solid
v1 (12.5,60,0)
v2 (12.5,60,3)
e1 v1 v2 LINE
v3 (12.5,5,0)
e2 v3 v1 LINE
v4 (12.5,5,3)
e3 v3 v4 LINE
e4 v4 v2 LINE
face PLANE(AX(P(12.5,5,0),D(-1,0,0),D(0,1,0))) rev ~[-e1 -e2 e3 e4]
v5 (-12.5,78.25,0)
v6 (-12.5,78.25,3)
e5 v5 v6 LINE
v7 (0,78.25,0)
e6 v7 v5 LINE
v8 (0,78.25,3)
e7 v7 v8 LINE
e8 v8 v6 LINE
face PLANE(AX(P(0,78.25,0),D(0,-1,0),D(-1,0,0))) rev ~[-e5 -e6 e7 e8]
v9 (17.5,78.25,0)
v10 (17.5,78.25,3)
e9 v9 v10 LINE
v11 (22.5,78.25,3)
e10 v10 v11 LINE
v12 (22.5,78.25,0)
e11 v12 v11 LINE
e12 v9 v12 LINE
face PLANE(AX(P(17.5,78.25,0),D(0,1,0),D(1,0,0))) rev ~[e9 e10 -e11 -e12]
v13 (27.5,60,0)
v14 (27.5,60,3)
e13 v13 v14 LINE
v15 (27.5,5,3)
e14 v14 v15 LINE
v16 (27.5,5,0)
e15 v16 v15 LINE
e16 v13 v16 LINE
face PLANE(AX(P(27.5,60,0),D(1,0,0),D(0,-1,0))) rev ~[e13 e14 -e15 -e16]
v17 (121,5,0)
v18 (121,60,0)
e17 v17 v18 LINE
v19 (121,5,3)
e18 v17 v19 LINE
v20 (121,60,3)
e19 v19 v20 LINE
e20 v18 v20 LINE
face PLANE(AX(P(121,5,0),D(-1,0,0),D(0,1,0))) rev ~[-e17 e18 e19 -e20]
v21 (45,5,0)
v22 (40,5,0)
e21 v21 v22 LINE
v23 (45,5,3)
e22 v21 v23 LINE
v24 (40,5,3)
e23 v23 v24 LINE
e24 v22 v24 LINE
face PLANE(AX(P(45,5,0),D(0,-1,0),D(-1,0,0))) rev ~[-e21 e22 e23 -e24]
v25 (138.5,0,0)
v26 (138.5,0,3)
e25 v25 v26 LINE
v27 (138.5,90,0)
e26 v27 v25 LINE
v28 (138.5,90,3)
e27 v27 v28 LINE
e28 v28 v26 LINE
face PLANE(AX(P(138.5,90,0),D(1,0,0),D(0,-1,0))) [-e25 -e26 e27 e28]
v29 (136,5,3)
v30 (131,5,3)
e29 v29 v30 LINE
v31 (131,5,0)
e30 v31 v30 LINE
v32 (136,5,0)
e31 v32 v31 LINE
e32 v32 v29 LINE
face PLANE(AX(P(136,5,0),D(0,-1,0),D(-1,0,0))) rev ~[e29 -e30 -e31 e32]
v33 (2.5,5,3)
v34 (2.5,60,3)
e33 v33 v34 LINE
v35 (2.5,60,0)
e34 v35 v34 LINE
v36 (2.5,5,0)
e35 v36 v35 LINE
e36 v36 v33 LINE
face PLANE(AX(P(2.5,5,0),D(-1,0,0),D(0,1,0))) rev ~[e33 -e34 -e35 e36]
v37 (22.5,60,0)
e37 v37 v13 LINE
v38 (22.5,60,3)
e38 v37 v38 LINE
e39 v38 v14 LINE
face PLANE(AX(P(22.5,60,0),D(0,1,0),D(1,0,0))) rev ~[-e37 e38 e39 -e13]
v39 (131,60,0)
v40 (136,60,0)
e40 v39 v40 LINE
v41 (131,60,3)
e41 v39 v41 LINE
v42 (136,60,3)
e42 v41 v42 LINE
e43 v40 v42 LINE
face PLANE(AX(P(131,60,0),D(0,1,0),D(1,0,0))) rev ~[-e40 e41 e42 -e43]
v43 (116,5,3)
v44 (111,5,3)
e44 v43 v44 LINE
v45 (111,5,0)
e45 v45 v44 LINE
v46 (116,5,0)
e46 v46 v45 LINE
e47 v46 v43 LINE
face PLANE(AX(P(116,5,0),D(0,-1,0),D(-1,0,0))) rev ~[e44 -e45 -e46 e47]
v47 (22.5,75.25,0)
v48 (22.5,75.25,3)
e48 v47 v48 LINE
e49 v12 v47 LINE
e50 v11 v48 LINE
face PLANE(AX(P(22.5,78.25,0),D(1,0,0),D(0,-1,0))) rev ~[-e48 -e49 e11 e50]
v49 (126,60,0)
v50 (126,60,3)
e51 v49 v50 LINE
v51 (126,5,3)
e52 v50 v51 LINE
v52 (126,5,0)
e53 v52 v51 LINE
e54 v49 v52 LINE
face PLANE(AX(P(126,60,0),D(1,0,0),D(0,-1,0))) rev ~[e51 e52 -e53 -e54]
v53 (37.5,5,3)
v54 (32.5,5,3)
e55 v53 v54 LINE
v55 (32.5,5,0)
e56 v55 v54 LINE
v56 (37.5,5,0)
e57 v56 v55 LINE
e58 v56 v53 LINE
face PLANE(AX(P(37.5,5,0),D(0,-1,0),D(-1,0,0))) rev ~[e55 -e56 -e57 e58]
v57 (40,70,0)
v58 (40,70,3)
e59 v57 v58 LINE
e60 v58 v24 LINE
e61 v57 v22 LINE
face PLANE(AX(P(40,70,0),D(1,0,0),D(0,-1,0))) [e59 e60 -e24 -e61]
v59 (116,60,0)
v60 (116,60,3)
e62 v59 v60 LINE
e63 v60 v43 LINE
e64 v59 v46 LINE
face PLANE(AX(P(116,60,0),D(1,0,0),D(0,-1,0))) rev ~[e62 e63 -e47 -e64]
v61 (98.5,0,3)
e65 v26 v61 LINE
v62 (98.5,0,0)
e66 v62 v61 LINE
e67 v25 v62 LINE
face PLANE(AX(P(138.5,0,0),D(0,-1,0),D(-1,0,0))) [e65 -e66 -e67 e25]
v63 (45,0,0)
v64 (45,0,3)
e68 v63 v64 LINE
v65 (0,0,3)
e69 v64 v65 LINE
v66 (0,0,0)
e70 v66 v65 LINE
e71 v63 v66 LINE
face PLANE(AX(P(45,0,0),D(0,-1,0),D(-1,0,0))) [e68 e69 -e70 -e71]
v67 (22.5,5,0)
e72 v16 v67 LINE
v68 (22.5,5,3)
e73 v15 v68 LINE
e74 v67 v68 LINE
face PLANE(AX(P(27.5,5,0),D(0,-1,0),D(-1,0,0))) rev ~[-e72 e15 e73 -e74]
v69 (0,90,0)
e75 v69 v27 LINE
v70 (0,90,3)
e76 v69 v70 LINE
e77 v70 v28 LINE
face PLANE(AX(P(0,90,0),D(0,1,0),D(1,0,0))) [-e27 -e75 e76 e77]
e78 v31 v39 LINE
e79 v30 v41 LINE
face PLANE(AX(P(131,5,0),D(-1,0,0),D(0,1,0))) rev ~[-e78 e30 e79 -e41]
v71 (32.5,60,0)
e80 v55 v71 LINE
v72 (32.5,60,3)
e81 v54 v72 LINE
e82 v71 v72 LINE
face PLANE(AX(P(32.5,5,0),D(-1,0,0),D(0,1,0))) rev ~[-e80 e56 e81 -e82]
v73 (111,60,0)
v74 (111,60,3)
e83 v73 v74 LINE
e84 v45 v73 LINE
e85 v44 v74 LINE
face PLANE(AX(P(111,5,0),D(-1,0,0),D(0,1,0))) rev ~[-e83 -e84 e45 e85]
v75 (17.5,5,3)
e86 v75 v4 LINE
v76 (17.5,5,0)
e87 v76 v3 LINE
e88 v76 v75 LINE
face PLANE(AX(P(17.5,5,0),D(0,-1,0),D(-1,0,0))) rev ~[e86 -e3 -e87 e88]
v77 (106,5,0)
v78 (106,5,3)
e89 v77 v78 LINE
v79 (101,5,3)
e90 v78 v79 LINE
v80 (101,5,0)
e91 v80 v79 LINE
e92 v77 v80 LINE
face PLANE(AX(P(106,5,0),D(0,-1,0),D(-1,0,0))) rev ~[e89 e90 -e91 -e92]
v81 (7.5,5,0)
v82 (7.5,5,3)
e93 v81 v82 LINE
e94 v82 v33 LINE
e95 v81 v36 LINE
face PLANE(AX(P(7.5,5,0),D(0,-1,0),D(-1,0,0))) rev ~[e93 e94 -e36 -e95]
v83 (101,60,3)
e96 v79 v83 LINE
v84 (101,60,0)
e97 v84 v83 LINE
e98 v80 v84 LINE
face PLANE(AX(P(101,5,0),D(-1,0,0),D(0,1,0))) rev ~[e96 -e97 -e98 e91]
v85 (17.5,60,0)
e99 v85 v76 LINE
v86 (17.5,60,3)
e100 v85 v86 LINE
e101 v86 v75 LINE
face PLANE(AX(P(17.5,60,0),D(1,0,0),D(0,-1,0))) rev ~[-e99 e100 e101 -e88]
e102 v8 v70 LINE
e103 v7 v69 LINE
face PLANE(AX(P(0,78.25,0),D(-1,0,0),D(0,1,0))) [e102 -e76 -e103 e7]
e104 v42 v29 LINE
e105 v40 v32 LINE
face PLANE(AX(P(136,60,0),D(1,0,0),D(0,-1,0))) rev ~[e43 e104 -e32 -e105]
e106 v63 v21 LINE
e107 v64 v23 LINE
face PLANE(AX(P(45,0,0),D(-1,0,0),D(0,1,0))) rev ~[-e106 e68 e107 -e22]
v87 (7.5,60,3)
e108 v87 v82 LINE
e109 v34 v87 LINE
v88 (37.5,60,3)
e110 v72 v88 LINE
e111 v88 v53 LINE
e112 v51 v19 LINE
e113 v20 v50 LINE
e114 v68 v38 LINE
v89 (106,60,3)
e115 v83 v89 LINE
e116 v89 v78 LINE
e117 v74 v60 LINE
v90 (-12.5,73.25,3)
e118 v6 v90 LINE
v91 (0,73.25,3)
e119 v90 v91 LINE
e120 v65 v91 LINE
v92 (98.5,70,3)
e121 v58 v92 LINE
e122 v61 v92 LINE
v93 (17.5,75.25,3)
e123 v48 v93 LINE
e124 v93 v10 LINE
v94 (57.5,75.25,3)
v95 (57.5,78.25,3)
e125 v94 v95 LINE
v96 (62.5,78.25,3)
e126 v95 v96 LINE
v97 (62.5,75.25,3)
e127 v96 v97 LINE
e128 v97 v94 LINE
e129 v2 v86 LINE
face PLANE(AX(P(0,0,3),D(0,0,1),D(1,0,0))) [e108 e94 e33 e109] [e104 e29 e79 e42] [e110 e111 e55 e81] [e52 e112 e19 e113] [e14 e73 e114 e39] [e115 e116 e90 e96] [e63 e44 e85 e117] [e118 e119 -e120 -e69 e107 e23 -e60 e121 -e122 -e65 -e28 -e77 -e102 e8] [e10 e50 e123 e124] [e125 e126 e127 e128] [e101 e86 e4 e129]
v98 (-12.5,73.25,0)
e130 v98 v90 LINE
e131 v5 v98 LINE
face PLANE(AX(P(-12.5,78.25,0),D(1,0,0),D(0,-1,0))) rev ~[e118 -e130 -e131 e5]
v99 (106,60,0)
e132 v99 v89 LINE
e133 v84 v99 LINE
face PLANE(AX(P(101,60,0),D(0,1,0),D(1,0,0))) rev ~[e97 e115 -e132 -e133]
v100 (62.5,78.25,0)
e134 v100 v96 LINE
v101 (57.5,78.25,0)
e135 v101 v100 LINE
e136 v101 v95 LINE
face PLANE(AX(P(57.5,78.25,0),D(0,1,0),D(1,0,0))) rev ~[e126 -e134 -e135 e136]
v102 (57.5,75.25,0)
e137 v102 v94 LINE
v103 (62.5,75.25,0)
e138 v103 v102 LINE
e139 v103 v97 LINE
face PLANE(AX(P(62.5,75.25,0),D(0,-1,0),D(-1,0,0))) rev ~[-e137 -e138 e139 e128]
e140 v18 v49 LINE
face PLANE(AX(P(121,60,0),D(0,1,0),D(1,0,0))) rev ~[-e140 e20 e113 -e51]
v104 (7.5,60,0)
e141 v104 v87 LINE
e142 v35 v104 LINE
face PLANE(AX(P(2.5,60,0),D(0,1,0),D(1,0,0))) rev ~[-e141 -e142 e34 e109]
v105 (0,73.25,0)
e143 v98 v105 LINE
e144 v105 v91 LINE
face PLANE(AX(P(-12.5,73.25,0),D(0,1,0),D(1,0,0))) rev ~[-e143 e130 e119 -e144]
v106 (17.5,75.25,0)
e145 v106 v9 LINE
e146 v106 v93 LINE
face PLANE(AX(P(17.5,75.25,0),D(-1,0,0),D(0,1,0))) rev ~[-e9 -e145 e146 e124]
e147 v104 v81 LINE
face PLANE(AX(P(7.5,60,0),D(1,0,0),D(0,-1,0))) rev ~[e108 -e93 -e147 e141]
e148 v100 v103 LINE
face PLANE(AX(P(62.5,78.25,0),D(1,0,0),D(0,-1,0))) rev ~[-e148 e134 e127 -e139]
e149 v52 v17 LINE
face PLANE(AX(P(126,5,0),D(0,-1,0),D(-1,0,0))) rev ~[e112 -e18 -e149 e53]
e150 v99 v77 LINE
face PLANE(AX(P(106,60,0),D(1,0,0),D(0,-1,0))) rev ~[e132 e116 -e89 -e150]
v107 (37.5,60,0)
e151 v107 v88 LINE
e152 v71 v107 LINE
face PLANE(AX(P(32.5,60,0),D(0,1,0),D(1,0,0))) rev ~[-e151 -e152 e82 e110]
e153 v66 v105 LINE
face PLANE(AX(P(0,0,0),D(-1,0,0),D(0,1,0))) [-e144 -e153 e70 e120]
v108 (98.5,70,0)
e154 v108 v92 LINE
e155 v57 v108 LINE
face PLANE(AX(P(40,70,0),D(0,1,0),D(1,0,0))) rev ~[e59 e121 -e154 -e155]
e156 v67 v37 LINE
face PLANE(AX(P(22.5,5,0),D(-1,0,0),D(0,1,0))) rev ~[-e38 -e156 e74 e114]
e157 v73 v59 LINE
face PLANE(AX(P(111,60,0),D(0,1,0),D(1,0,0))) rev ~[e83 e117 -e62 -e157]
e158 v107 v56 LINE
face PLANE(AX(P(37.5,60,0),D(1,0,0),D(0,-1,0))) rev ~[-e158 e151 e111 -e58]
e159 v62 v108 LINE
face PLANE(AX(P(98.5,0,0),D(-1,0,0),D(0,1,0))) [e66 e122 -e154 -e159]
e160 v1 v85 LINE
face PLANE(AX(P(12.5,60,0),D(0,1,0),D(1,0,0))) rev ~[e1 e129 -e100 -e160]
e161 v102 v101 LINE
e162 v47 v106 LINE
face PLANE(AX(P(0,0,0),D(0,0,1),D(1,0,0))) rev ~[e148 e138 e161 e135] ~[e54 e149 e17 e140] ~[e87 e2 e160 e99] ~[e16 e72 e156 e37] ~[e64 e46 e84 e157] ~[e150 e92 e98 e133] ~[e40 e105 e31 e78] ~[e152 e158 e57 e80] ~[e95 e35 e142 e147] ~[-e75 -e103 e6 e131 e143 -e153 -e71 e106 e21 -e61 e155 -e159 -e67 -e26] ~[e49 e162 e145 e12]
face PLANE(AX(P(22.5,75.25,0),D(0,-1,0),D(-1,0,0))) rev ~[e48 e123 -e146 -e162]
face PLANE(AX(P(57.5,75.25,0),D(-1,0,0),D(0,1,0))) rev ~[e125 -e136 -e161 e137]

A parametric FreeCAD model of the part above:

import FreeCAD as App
import Part
import Sketcher

V = App.Vector

doc = App.newDocument("Part")
body = doc.addObject("PartDesign::Body", "Body")

# Sketch on XY plane
sketch1 = doc.addObject("Sketcher::SketchObject", "Sketch")
body.addObject(sketch1)
sketch1.AttachmentSupport = (doc.XY_Plane, [""])
sketch1.MapMode = "FlatFace"
sketch1.addGeometry([
    Part.LineSegment(V(40, 5, 0), V(40, 70, 0)),  # 0
    Part.LineSegment(V(40, 70, 0), V(98.5, 70, 0)),  # 1
    Part.LineSegment(V(98.5, 70, 0), V(98.5, 0, 0)),  # 2
    Part.LineSegment(V(98.5, 0, 0), V(138.5, 0, 0)),  # 3
    Part.LineSegment(V(138.5, 0, 0), V(138.5, 90, 0)),  # 4
    Part.LineSegment(V(138.5, 90, 0), V(0, 90, 0)),  # 5
    Part.LineSegment(V(0, 90, 0), V(0, 78.2, 0)),  # 6
    Part.LineSegment(V(0, 78.2, 0), V(-12.5, 78.2, 0)),  # 7
    Part.LineSegment(V(-12.5, 78.2, 0), V(-12.5, 73.2, 0)),  # 8
    Part.LineSegment(V(-12.5, 73.2, 0), V(0, 73.2, 0)),  # 9
    Part.LineSegment(V(0, 73.2, 0), V(0, 0, 0)),  # 10
    Part.LineSegment(V(0, 0, 0), V(45, 0, 0)),  # 11
    Part.LineSegment(V(45, 0, 0), V(45, 5, 0)),  # 12
    Part.LineSegment(V(45, 5, 0), V(40, 5, 0)),  # 13
    Part.LineSegment(V(2.5, 5, 0), V(2.5, 60, 0)),  # 14
    Part.LineSegment(V(2.5, 60, 0), V(7.5, 60, 0)),  # 15
    Part.LineSegment(V(7.5, 60, 0), V(7.5, 5, 0)),  # 16
    Part.LineSegment(V(7.5, 5, 0), V(2.5, 5, 0)),  # 17
    Part.LineSegment(V(12.5, 5, 0), V(12.5, 60, 0)),  # 18
    Part.LineSegment(V(12.5, 60, 0), V(17.5, 60, 0)),  # 19
    Part.LineSegment(V(17.5, 60, 0), V(17.5, 5, 0)),  # 20
    Part.LineSegment(V(17.5, 5, 0), V(12.5, 5, 0)),  # 21
    Part.LineSegment(V(22.5, 5, 0), V(22.5, 60, 0)),  # 22
    Part.LineSegment(V(22.5, 60, 0), V(27.5, 60, 0)),  # 23
    Part.LineSegment(V(27.5, 60, 0), V(27.5, 5, 0)),  # 24
    Part.LineSegment(V(27.5, 5, 0), V(22.5, 5, 0)),  # 25
    Part.LineSegment(V(32.5, 5, 0), V(32.5, 60, 0)),  # 26
    Part.LineSegment(V(32.5, 60, 0), V(37.5, 60, 0)),  # 27
    Part.LineSegment(V(37.5, 60, 0), V(37.5, 5, 0)),  # 28
    Part.LineSegment(V(37.5, 5, 0), V(32.5, 5, 0)),  # 29
    Part.LineSegment(V(101, 5, 0), V(101, 60, 0)),  # 30
    Part.LineSegment(V(101, 60, 0), V(106, 60, 0)),  # 31
    Part.LineSegment(V(106, 60, 0), V(106, 5, 0)),  # 32
    Part.LineSegment(V(106, 5, 0), V(101, 5, 0)),  # 33
    Part.LineSegment(V(111, 5, 0), V(111, 60, 0)),  # 34
    Part.LineSegment(V(111, 60, 0), V(116, 60, 0)),  # 35
    Part.LineSegment(V(116, 60, 0), V(116, 5, 0)),  # 36
    Part.LineSegment(V(116, 5, 0), V(111, 5, 0)),  # 37
    Part.LineSegment(V(121, 5, 0), V(121, 60, 0)),  # 38
    Part.LineSegment(V(121, 60, 0), V(126, 60, 0)),  # 39
    Part.LineSegment(V(126, 60, 0), V(126, 5, 0)),  # 40
    Part.LineSegment(V(126, 5, 0), V(121, 5, 0)),  # 41
    Part.LineSegment(V(131, 60, 0), V(136, 60, 0)),  # 42
    Part.LineSegment(V(136, 60, 0), V(136, 5, 0)),  # 43
    Part.LineSegment(V(136, 5, 0), V(131, 5, 0)),  # 44
    Part.LineSegment(V(131, 5, 0), V(131, 60, 0)),  # 45
    Part.LineSegment(V(17.5, 75.2, 0), V(17.5, 78.2, 0)),  # 46
    Part.LineSegment(V(17.5, 78.2, 0), V(22.5, 78.2, 0)),  # 47
    Part.LineSegment(V(22.5, 78.2, 0), V(22.5, 75.2, 0)),  # 48
    Part.LineSegment(V(22.5, 75.2, 0), V(17.5, 75.2, 0)),  # 49
    Part.LineSegment(V(57.5, 75.2, 0), V(57.5, 78.2, 0)),  # 50
    Part.LineSegment(V(57.5, 78.2, 0), V(62.5, 78.2, 0)),  # 51
    Part.LineSegment(V(62.5, 78.2, 0), V(62.5, 75.2, 0)),  # 52
    Part.LineSegment(V(62.5, 75.2, 0), V(57.5, 75.2, 0)),  # 53
], False)
sketch1.addConstraint([
    Sketcher.Constraint("Coincident", 0, 2, 1, 1),
    Sketcher.Constraint("Coincident", 1, 2, 2, 1),
    Sketcher.Constraint("Coincident", 2, 2, 3, 1),
    Sketcher.Constraint("Coincident", 3, 2, 4, 1),
    Sketcher.Constraint("Coincident", 4, 2, 5, 1),
    Sketcher.Constraint("Coincident", 5, 2, 6, 1),
    Sketcher.Constraint("Coincident", 6, 2, 7, 1),
    Sketcher.Constraint("Coincident", 7, 2, 8, 1),
    Sketcher.Constraint("Coincident", 8, 2, 9, 1),
    Sketcher.Constraint("Coincident", 9, 2, 10, 1),
    Sketcher.Constraint("Coincident", 10, 2, 11, 1),
    Sketcher.Constraint("Coincident", 11, 2, 12, 1),
    Sketcher.Constraint("Coincident", 12, 2, 13, 1),
    Sketcher.Constraint("Coincident", 13, 2, 0, 1),
    Sketcher.Constraint("Coincident", 14, 2, 15, 1),
    Sketcher.Constraint("Coincident", 15, 2, 16, 1),
    Sketcher.Constraint("Coincident", 16, 2, 17, 1),
    Sketcher.Constraint("Coincident", 17, 2, 14, 1),
    Sketcher.Constraint("Coincident", 18, 2, 19, 1),
    Sketcher.Constraint("Coincident", 19, 2, 20, 1),
    Sketcher.Constraint("Coincident", 20, 2, 21, 1),
    Sketcher.Constraint("Coincident", 21, 2, 18, 1),
    Sketcher.Constraint("Coincident", 22, 2, 23, 1),
    Sketcher.Constraint("Coincident", 23, 2, 24, 1),
    Sketcher.Constraint("Coincident", 24, 2, 25, 1),
    Sketcher.Constraint("Coincident", 25, 2, 22, 1),
    Sketcher.Constraint("Coincident", 26, 2, 27, 1),
    Sketcher.Constraint("Coincident", 27, 2, 28, 1),
    Sketcher.Constraint("Coincident", 28, 2, 29, 1),
    Sketcher.Constraint("Coincident", 29, 2, 26, 1),
    Sketcher.Constraint("Coincident", 30, 2, 31, 1),
    Sketcher.Constraint("Coincident", 31, 2, 32, 1),
    Sketcher.Constraint("Coincident", 32, 2, 33, 1),
    Sketcher.Constraint("Coincident", 33, 2, 30, 1),
    Sketcher.Constraint("Coincident", 34, 2, 35, 1),
    Sketcher.Constraint("Coincident", 35, 2, 36, 1),
    Sketcher.Constraint("Coincident", 36, 2, 37, 1),
    Sketcher.Constraint("Coincident", 37, 2, 34, 1),
    Sketcher.Constraint("Coincident", 38, 2, 39, 1),
    Sketcher.Constraint("Coincident", 39, 2, 40, 1),
    Sketcher.Constraint("Coincident", 40, 2, 41, 1),
    Sketcher.Constraint("Coincident", 41, 2, 38, 1),
    Sketcher.Constraint("Coincident", 42, 2, 43, 1),
    Sketcher.Constraint("Coincident", 43, 2, 44, 1),
    Sketcher.Constraint("Coincident", 44, 2, 45, 1),
    Sketcher.Constraint("Coincident", 45, 2, 42, 1),
    Sketcher.Constraint("Coincident", 46, 2, 47, 1),
    Sketcher.Constraint("Coincident", 47, 2, 48, 1),
    Sketcher.Constraint("Coincident", 48, 2, 49, 1),
    Sketcher.Constraint("Coincident", 49, 2, 46, 1),
    Sketcher.Constraint("Coincident", 50, 2, 51, 1),
    Sketcher.Constraint("Coincident", 51, 2, 52, 1),
    Sketcher.Constraint("Coincident", 52, 2, 53, 1),
    Sketcher.Constraint("Coincident", 53, 2, 50, 1),
    Sketcher.Constraint("Vertical", 0),
    Sketcher.Constraint("Horizontal", 1),
    Sketcher.Constraint("Vertical", 2),
    Sketcher.Constraint("Horizontal", 3),
    Sketcher.Constraint("Vertical", 4),
    Sketcher.Constraint("Horizontal", 5),
    Sketcher.Constraint("Vertical", 6),
    Sketcher.Constraint("Horizontal", 7),
    Sketcher.Constraint("Vertical", 8),
    Sketcher.Constraint("Horizontal", 9),
    Sketcher.Constraint("Vertical", 10),
    Sketcher.Constraint("Horizontal", 11),
    Sketcher.Constraint("Vertical", 12),
    Sketcher.Constraint("Horizontal", 13),
    Sketcher.Constraint("Vertical", 14),
    Sketcher.Constraint("Horizontal", 15),
    Sketcher.Constraint("Vertical", 16),
    Sketcher.Constraint("Horizontal", 17),
    Sketcher.Constraint("Vertical", 18),
    Sketcher.Constraint("Horizontal", 19),
    Sketcher.Constraint("Vertical", 20),
    Sketcher.Constraint("Horizontal", 21),
    Sketcher.Constraint("Vertical", 22),
    Sketcher.Constraint("Horizontal", 23),
    Sketcher.Constraint("Vertical", 24),
    Sketcher.Constraint("Horizontal", 25),
    Sketcher.Constraint("Vertical", 26),
    Sketcher.Constraint("Horizontal", 27),
    Sketcher.Constraint("Vertical", 28),
    Sketcher.Constraint("Horizontal", 29),
    Sketcher.Constraint("Vertical", 30),
    Sketcher.Constraint("Horizontal", 31),
    Sketcher.Constraint("Vertical", 32),
    Sketcher.Constraint("Horizontal", 33),
    Sketcher.Constraint("Vertical", 34),
    Sketcher.Constraint("Horizontal", 35),
    Sketcher.Constraint("Vertical", 36),
    Sketcher.Constraint("Horizontal", 37),
    Sketcher.Constraint("Vertical", 38),
    Sketcher.Constraint("Horizontal", 39),
    Sketcher.Constraint("Vertical", 40),
    Sketcher.Constraint("Horizontal", 41),
    Sketcher.Constraint("Horizontal", 42),
    Sketcher.Constraint("Vertical", 43),
    Sketcher.Constraint("Horizontal", 44),
    Sketcher.Constraint("Vertical", 45),
    Sketcher.Constraint("Vertical", 46),
    Sketcher.Constraint("Horizontal", 47),
    Sketcher.Constraint("Vertical", 48),
    Sketcher.Constraint("Horizontal", 49),
    Sketcher.Constraint("Vertical", 50),
    Sketcher.Constraint("Horizontal", 51),
    Sketcher.Constraint("Vertical", 52),
    Sketcher.Constraint("Horizontal", 53),
    Sketcher.Constraint("Coincident", 10, 2, -1, 1),
    Sketcher.Constraint("PointOnObject", 2, 2, -1),
    Sketcher.Constraint("PointOnObject", 5, 2, -2),
    Sketcher.Constraint("Horizontal", 13, 2, 16, 2),
    Sketcher.Constraint("Horizontal", 15, 2, 18, 2),
    Sketcher.Constraint("Horizontal", 17, 2, 20, 2),
    Sketcher.Constraint("Horizontal", 19, 2, 22, 2),
    Sketcher.Constraint("Horizontal", 21, 2, 24, 2),
    Sketcher.Constraint("Horizontal", 23, 2, 26, 2),
    Sketcher.Constraint("Horizontal", 25, 2, 28, 2),
    Sketcher.Constraint("Horizontal", 27, 2, 30, 2),
    Sketcher.Constraint("Horizontal", 29, 2, 32, 2),
    Sketcher.Constraint("Horizontal", 31, 2, 34, 2),
    Sketcher.Constraint("Horizontal", 33, 2, 36, 2),
    Sketcher.Constraint("Horizontal", 35, 2, 38, 2),
    Sketcher.Constraint("Horizontal", 37, 2, 40, 2),
    Sketcher.Constraint("Horizontal", 39, 2, 42, 2),
    Sketcher.Constraint("Horizontal", 41, 2, 43, 2),
    Sketcher.Constraint("Horizontal", 7, 2, 46, 2),
    Sketcher.Constraint("Horizontal", 47, 2, 50, 2),
    Sketcher.Constraint("Horizontal", 49, 2, 52, 2),
    Sketcher.Constraint("Vertical", 20, 2, 46, 2),
    Sketcher.Constraint("Vertical", 25, 2, 47, 2),
    Sketcher.Constraint("Equal", 13, 15),
    Sketcher.Constraint("Equal", 17, 19),
    Sketcher.Constraint("Equal", 21, 23),
    Sketcher.Constraint("Equal", 25, 27),
    Sketcher.Constraint("Equal", 29, 31),
    Sketcher.Constraint("Equal", 33, 35),
    Sketcher.Constraint("Equal", 37, 39),
    Sketcher.Constraint("Equal", 41, 42),
    Sketcher.Constraint("Equal", 44, 47),
    Sketcher.Constraint("Equal", 49, 51),
    Sketcher.Constraint("Equal", 53, 8),
    Sketcher.Constraint("Equal", 8, 12),
    Sketcher.Constraint("DistanceX", 3, 1, 3, 2, 40.0),
    Sketcher.Constraint("DistanceX", 13, 2, 13, 1, 5.0),
    Sketcher.Constraint("DistanceY", 2, 2, 2, 1, 70.0),
    Sketcher.Constraint("DistanceY", 4, 1, 4, 2, 90.0),
    Sketcher.Constraint("DistanceY", 14, 1, 14, 2, 55.0),
    Sketcher.Constraint("DistanceY", 46, 1, 46, 2, 3.0),
    Sketcher.Constraint("DistanceX", 5, 2, 5, 1, 138.5),
    Sketcher.Constraint("DistanceX", 7, 2, 7, 1, 12.5),
    Sketcher.Constraint("DistanceX", -1, 1, 0, 2, 40.0),
    Sketcher.Constraint("DistanceX", 8, 2, 15, 2, 20.0),
    Sketcher.Constraint("DistanceX", 15, 2, 18, 2, 5.0),
    Sketcher.Constraint("DistanceX", 23, 2, 26, 2, 5.0),
    Sketcher.Constraint("DistanceX", 31, 2, 34, 2, 5.0),
    Sketcher.Constraint("DistanceX", 35, 2, 38, 2, 5.0),
    Sketcher.Constraint("DistanceX", 35, 2, 42, 2, 20.0),
    Sketcher.Constraint("DistanceX", 27, 2, 50, 2, 20.0),
    Sketcher.Constraint("DistanceX", 1, 2, 30, 2, 2.5),
    Sketcher.Constraint("DistanceY", 6, 2, 6, 1, 11.75),
])
pad1 = doc.addObject("PartDesign::Pad", "Pad")
body.addObject(pad1)
pad1.Profile = sketch1
pad1.Length = 3

doc.recompute()
